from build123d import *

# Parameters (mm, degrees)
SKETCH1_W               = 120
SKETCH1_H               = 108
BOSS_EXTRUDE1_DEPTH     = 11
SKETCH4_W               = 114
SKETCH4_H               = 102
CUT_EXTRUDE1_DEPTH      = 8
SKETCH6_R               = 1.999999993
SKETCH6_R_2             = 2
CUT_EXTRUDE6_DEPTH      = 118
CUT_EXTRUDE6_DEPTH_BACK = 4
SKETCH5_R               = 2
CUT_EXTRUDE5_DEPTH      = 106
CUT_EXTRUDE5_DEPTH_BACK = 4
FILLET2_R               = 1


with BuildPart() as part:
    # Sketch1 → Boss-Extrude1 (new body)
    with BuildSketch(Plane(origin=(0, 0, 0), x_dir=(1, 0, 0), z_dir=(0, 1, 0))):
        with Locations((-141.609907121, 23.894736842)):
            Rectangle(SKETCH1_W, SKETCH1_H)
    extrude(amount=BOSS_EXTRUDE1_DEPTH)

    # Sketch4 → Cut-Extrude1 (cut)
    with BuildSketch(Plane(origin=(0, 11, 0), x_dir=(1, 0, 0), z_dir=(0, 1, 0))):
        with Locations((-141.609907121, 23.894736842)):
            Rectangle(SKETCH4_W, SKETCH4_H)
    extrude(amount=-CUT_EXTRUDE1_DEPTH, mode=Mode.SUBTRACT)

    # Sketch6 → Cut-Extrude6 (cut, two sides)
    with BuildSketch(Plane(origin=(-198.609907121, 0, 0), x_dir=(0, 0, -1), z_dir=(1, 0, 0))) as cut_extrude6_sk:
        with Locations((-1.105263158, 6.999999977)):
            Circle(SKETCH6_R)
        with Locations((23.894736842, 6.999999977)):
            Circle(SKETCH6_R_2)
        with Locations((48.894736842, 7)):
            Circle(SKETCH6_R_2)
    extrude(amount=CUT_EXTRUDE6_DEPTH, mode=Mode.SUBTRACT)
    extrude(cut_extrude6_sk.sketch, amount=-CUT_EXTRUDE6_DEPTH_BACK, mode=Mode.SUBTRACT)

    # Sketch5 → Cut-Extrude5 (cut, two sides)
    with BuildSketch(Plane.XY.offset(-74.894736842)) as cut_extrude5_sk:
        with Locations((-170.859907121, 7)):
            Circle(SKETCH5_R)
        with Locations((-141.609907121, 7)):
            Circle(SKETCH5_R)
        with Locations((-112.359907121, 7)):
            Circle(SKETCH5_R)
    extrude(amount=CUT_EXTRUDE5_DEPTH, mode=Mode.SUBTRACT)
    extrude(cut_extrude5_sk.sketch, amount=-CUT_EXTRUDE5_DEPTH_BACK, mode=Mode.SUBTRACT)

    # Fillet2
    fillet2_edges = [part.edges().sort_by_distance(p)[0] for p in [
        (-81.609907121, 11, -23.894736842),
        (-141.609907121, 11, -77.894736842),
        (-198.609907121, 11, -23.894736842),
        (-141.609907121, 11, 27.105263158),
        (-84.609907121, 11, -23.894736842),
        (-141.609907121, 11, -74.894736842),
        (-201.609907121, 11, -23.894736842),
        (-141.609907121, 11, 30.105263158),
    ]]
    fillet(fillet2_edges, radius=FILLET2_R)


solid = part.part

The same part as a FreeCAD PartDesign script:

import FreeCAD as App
import Part
import Sketcher

V = App.Vector
Q = App.Units.Quantity


def edges_at(feature, points):
    """Names of the edges that pass closest to the given points."""
    edges = feature.Shape.Edges
    near = lambda p: min(range(len(edges)), key=lambda i: edges[i].distToShape(Part.Vertex(*p))[0])
    return sorted({f"Edge{near(p) + 1}" for p in points})


def add_polygon(sketch, points):
    """Adds a closed chain of lines whose ends are joined by coincident constraints."""
    first, n = sketch.GeometryCount, len(points)
    for a, b in zip(points, points[1:] + points[:1]):
        sketch.addGeometry(Part.LineSegment(App.Vector(*a, 0), App.Vector(*b, 0)), False)
    for i in range(n):
        sketch.addConstraint(Sketcher.Constraint("Coincident", first + i, 2, first + (i + 1) % n, 1))

doc = App.newDocument("Part")
body = doc.addObject("PartDesign::Body", "Body")

sketch1 = body.newObject("Sketcher::SketchObject", "Sketch")
sketch1.AttachmentSupport = (doc.getObject("XZ_Plane"), [""])
sketch1.MapMode = "FlatFace"
add_polygon(sketch1, [(-202, -78), (-202, 30), (-82, 30), (-82, -78)])
sketch1.addConstraint([
    Sketcher.Constraint("Vertical", 0),
    Sketcher.Constraint("Horizontal", 1),
    Sketcher.Constraint("Vertical", 2),
    Sketcher.Constraint("Horizontal", 3),
    Sketcher.Constraint("DistanceX", 1, 1, 1, 2, Q("120 mm")),
    Sketcher.Constraint("DistanceY", 0, 1, 0, 2, Q("108 mm")),
    Sketcher.Constraint("DistanceX", 0, 2, -1, 1, Q("201.609907 mm")),
    Sketcher.Constraint("DistanceY", -1, 1, 0, 2, Q("30.105263 mm")),
])
pad1 = body.newObject("PartDesign::Pad", "Pad")
pad1.Profile = sketch1
pad1.Length = 11
pad1.Reversed = True

sketch2 = body.newObject("Sketcher::SketchObject", "Sketch001")
sketch2.AttachmentSupport = (doc.getObject("XZ_Plane"), [""])
sketch2.MapMode = "FlatFace"
sketch2.AttachmentOffset = App.Placement(V(0, 0, -11), App.Rotation())
add_polygon(sketch2, [(-199, -75), (-199, 27), (-85, 27), (-85, -75)])
sketch2.addConstraint([
    Sketcher.Constraint("Vertical", 0),
    Sketcher.Constraint("Horizontal", 1),
    Sketcher.Constraint("Vertical", 2),
    Sketcher.Constraint("Horizontal", 3),
    Sketcher.Constraint("DistanceX", 1, 1, 1, 2, Q("114 mm")),
    Sketcher.Constraint("DistanceY", 0, 1, 0, 2, Q("102 mm")),
    Sketcher.Constraint("DistanceX", 0, 2, -1, 1, Q("198.609907 mm")),
    Sketcher.Constraint("DistanceY", -1, 1, 0, 2, Q("27.105263 mm")),
])
pocket1 = body.newObject("PartDesign::Pocket", "Pocket")
pocket1.Profile = sketch2
pocket1.Length = 8
pocket1.Reversed = True

sketch3 = body.newObject("Sketcher::SketchObject", "Sketch002")
sketch3.AttachmentSupport = (doc.getObject("YZ_Plane"), [""])
sketch3.MapMode = "FlatFace"
sketch3.AttachmentOffset = App.Placement(V(0, 0, -198.609907), App.Rotation())
sketch3.addGeometry([
    Part.Circle(V(7, 1.1, 0), V(0, 0, 1), 2),
    Part.Circle(V(7, -23.9, 0), V(0, 0, 1), 2),
    Part.Circle(V(7, -48.9, 0), V(0, 0, 1), 2),
], False)
sketch3.addConstraint([
    Sketcher.Constraint("Equal", 0, 1),
    Sketcher.Constraint("Equal", 1, 2),
    Sketcher.Constraint("Vertical", 0, 3, 1, 3),
    Sketcher.Constraint("Vertical", 1, 3, 2, 3),
    Sketcher.Constraint("Diameter", 0, Q("4 mm")),
    Sketcher.Constraint("DistanceX", -1, 1, 0, 3, Q("7 mm")),
    Sketcher.Constraint("DistanceY", 1, 3, 0, 3, Q("25 mm")),
    Sketcher.Constraint("DistanceY", 2, 3, 1, 3, Q("25 mm")),
    Sketcher.Constraint("DistanceY", -1, 1, 0, 3, Q("1.105263 mm")),
])
pocket2 = body.newObject("PartDesign::Pocket", "Pocket001")
pocket2.Profile = sketch3
pocket2.Type = "ThroughAll"
pocket2.Midplane = True

sketch4 = body.newObject("Sketcher::SketchObject", "Sketch003")
sketch4.AttachmentSupport = (doc.getObject("XY_Plane"), [""])
sketch4.MapMode = "FlatFace"
sketch4.AttachmentOffset = App.Placement(V(0, 0, -74.894737), App.Rotation())
sketch4.addGeometry([
    Part.Circle(V(-170.9, 7, 0), V(0, 0, 1), 2),
    Part.Circle(V(-141.6, 7, 0), V(0, 0, 1), 2),
    Part.Circle(V(-112.4, 7, 0), V(0, 0, 1), 2),
], False)
sketch4.addConstraint([
    Sketcher.Constraint("Equal", 0, 1),
    Sketcher.Constraint("Equal", 1, 2),
    Sketcher.Constraint("Horizontal", 0, 3, 1, 3),
    Sketcher.Constraint("Horizontal", 1, 3, 2, 3),
    Sketcher.Constraint("Diameter", 0, Q("4 mm")),
    Sketcher.Constraint("DistanceY", -1, 1, 0, 3, Q("7 mm")),
    Sketcher.Constraint("DistanceX", 0, 3, 2, 3, Q("58.5 mm")),
    Sketcher.Constraint("DistanceX", 0, 3, 1, 3, Q("29.25 mm")),
    Sketcher.Constraint("DistanceX", 0, 3, -1, 1, Q("170.859907 mm")),
])
pocket3 = body.newObject("PartDesign::Pocket", "Pocket002")
pocket3.Profile = sketch4
pocket3.Type = "ThroughAll"
pocket3.Midplane = True
doc.recompute()

fillet = body.newObject("PartDesign::Fillet", "Fillet")
fillet.Base = (pocket3, edges_at(pocket3, [
    (-81.61, 11, -23.895),
    (-141.61, 11, -77.895),
    (-198.61, 11, -23.895),
    (-141.61, 11, 27.105),
    (-84.61, 11, -23.895),
    (-141.61, 11, -74.895),
    (-201.61, 11, -23.895),
    (-141.61, 11, 30.105),
]))
fillet.Radius = 1

doc.recompute()
